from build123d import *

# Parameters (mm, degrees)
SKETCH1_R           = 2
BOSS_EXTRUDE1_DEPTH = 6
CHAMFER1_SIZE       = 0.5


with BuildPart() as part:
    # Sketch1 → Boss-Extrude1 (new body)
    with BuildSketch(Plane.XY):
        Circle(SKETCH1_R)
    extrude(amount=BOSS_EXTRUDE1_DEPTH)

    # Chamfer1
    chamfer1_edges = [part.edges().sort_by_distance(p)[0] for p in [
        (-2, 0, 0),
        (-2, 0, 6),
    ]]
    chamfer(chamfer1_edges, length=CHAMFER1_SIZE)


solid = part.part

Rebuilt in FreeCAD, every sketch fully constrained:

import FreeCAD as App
import Part
import Sketcher
from FreeCAD import Vector


def edges_at(feature, points):
    """Names of the edges that pass closest to the given points."""
    edges = feature.Shape.Edges
    near = lambda p: min(range(len(edges)), key=lambda i: edges[i].distToShape(Part.Vertex(*p))[0])
    return sorted({f"Edge{near(p) + 1}" for p in points})

doc = App.newDocument("Part")
body = doc.addObject("PartDesign::Body", "Body")

sketch1 = doc.addObject("Sketcher::SketchObject", "Sketch")
body.addObject(sketch1)
sketch1.AttachmentSupport = (doc.XY_Plane, [""])
sketch1.MapMode = "FlatFace"
sketch1.addGeometry(Part.Circle(Vector(0, 0, 0), Vector(0, 0, 1), 2), False)
sketch1.addConstraint(Sketcher.Constraint("Coincident", 0, 3, -1, 1))
sketch1.addConstraint(Sketcher.Constraint("Diameter", 0, 4.0))
pad1 = doc.addObject("PartDesign::Pad", "Pad")
body.addObject(pad1)
pad1.Profile = sketch1
pad1.Length = 6
doc.recompute()

chamfer = doc.addObject("PartDesign::Chamfer", "Chamfer")
body.addObject(chamfer)
chamfer.Base = (pad1, edges_at(pad1, [(-2, 0, 0), (-2, 0, 6)]))
chamfer.Size = 0.5

doc.recompute()
